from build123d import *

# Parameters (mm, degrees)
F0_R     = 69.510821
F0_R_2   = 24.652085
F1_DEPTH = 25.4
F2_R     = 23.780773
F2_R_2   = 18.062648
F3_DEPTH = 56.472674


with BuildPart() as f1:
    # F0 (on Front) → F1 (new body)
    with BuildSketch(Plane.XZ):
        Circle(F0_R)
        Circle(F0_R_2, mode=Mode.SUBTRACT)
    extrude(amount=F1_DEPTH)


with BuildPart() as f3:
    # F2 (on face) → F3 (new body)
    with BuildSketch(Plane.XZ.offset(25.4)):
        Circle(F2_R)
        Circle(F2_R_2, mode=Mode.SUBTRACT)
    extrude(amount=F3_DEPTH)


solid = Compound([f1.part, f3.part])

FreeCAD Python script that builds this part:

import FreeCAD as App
import Part
import Sketcher

V = App.Vector
Q = App.Units.Quantity

doc = App.newDocument("Part")
body = doc.addObject("PartDesign::Body", "Body")

# Sketch on XZ plane
sketch1 = doc.addObject("Sketcher::SketchObject", "Sketch")
body.addObject(sketch1)
sketch1.AttachmentSupport = (doc.XZ_Plane, [""])
sketch1.MapMode = "FlatFace"
sketch1.addGeometry(Part.Circle(V(0, 0, 0), V(0, 0, 1), 69.510821), False)
sketch1.addGeometry(Part.Circle(V(0, 0, 0), V(0, 0, 1), 24.652085), False)
sketch1.addConstraint(Sketcher.Constraint("Coincident", 0, 3, -1, 1))
sketch1.addConstraint(Sketcher.Constraint("Coincident", 1, 3, -1, 1))
sketch1.addConstraint(Sketcher.Constraint("Diameter", 1, Q("49.30417 mm")))
sketch1.addConstraint(Sketcher.Constraint("Diameter", 0, Q("139.021642 mm")))
pad1 = doc.addObject("PartDesign::Pad", "Pad")
body.addObject(pad1)
pad1.Profile = sketch1
pad1.Length = Q("1 in")
body2 = doc.addObject("PartDesign::Body", "Body001")

# Sketch on XZ plane
sketch2 = doc.addObject("Sketcher::SketchObject", "Sketch001")
body2.addObject(sketch2)
sketch2.AttachmentSupport = (doc.getObject("XZ_Plane001"), [""])
sketch2.MapMode = "FlatFace"
sketch2.AttachmentOffset = App.Placement(V(0, 0, 1 * 25.4), App.Rotation())
sketch2.addGeometry(Part.Circle(V(0, 0, 0), V(0, 0, 1), 23.780773), False)
sketch2.addGeometry(Part.Circle(V(0, 0, 0), V(0, 0, 1), 18.062648), False)
sketch2.addConstraint(Sketcher.Constraint("Coincident", 0, 3, -1, 1))
sketch2.addConstraint(Sketcher.Constraint("Coincident", 1, 3, -1, 1))
sketch2.addConstraint(Sketcher.Constraint("Diameter", 0, Q("47.561546 mm")))
sketch2.addConstraint(Sketcher.Constraint("Diameter", 1, Q("36.125296 mm")))
pad2 = doc.addObject("PartDesign::Pad", "Pad001")
body2.addObject(pad2)
pad2.Profile = sketch2
pad2.Length = 56.472674

doc.recompute()
